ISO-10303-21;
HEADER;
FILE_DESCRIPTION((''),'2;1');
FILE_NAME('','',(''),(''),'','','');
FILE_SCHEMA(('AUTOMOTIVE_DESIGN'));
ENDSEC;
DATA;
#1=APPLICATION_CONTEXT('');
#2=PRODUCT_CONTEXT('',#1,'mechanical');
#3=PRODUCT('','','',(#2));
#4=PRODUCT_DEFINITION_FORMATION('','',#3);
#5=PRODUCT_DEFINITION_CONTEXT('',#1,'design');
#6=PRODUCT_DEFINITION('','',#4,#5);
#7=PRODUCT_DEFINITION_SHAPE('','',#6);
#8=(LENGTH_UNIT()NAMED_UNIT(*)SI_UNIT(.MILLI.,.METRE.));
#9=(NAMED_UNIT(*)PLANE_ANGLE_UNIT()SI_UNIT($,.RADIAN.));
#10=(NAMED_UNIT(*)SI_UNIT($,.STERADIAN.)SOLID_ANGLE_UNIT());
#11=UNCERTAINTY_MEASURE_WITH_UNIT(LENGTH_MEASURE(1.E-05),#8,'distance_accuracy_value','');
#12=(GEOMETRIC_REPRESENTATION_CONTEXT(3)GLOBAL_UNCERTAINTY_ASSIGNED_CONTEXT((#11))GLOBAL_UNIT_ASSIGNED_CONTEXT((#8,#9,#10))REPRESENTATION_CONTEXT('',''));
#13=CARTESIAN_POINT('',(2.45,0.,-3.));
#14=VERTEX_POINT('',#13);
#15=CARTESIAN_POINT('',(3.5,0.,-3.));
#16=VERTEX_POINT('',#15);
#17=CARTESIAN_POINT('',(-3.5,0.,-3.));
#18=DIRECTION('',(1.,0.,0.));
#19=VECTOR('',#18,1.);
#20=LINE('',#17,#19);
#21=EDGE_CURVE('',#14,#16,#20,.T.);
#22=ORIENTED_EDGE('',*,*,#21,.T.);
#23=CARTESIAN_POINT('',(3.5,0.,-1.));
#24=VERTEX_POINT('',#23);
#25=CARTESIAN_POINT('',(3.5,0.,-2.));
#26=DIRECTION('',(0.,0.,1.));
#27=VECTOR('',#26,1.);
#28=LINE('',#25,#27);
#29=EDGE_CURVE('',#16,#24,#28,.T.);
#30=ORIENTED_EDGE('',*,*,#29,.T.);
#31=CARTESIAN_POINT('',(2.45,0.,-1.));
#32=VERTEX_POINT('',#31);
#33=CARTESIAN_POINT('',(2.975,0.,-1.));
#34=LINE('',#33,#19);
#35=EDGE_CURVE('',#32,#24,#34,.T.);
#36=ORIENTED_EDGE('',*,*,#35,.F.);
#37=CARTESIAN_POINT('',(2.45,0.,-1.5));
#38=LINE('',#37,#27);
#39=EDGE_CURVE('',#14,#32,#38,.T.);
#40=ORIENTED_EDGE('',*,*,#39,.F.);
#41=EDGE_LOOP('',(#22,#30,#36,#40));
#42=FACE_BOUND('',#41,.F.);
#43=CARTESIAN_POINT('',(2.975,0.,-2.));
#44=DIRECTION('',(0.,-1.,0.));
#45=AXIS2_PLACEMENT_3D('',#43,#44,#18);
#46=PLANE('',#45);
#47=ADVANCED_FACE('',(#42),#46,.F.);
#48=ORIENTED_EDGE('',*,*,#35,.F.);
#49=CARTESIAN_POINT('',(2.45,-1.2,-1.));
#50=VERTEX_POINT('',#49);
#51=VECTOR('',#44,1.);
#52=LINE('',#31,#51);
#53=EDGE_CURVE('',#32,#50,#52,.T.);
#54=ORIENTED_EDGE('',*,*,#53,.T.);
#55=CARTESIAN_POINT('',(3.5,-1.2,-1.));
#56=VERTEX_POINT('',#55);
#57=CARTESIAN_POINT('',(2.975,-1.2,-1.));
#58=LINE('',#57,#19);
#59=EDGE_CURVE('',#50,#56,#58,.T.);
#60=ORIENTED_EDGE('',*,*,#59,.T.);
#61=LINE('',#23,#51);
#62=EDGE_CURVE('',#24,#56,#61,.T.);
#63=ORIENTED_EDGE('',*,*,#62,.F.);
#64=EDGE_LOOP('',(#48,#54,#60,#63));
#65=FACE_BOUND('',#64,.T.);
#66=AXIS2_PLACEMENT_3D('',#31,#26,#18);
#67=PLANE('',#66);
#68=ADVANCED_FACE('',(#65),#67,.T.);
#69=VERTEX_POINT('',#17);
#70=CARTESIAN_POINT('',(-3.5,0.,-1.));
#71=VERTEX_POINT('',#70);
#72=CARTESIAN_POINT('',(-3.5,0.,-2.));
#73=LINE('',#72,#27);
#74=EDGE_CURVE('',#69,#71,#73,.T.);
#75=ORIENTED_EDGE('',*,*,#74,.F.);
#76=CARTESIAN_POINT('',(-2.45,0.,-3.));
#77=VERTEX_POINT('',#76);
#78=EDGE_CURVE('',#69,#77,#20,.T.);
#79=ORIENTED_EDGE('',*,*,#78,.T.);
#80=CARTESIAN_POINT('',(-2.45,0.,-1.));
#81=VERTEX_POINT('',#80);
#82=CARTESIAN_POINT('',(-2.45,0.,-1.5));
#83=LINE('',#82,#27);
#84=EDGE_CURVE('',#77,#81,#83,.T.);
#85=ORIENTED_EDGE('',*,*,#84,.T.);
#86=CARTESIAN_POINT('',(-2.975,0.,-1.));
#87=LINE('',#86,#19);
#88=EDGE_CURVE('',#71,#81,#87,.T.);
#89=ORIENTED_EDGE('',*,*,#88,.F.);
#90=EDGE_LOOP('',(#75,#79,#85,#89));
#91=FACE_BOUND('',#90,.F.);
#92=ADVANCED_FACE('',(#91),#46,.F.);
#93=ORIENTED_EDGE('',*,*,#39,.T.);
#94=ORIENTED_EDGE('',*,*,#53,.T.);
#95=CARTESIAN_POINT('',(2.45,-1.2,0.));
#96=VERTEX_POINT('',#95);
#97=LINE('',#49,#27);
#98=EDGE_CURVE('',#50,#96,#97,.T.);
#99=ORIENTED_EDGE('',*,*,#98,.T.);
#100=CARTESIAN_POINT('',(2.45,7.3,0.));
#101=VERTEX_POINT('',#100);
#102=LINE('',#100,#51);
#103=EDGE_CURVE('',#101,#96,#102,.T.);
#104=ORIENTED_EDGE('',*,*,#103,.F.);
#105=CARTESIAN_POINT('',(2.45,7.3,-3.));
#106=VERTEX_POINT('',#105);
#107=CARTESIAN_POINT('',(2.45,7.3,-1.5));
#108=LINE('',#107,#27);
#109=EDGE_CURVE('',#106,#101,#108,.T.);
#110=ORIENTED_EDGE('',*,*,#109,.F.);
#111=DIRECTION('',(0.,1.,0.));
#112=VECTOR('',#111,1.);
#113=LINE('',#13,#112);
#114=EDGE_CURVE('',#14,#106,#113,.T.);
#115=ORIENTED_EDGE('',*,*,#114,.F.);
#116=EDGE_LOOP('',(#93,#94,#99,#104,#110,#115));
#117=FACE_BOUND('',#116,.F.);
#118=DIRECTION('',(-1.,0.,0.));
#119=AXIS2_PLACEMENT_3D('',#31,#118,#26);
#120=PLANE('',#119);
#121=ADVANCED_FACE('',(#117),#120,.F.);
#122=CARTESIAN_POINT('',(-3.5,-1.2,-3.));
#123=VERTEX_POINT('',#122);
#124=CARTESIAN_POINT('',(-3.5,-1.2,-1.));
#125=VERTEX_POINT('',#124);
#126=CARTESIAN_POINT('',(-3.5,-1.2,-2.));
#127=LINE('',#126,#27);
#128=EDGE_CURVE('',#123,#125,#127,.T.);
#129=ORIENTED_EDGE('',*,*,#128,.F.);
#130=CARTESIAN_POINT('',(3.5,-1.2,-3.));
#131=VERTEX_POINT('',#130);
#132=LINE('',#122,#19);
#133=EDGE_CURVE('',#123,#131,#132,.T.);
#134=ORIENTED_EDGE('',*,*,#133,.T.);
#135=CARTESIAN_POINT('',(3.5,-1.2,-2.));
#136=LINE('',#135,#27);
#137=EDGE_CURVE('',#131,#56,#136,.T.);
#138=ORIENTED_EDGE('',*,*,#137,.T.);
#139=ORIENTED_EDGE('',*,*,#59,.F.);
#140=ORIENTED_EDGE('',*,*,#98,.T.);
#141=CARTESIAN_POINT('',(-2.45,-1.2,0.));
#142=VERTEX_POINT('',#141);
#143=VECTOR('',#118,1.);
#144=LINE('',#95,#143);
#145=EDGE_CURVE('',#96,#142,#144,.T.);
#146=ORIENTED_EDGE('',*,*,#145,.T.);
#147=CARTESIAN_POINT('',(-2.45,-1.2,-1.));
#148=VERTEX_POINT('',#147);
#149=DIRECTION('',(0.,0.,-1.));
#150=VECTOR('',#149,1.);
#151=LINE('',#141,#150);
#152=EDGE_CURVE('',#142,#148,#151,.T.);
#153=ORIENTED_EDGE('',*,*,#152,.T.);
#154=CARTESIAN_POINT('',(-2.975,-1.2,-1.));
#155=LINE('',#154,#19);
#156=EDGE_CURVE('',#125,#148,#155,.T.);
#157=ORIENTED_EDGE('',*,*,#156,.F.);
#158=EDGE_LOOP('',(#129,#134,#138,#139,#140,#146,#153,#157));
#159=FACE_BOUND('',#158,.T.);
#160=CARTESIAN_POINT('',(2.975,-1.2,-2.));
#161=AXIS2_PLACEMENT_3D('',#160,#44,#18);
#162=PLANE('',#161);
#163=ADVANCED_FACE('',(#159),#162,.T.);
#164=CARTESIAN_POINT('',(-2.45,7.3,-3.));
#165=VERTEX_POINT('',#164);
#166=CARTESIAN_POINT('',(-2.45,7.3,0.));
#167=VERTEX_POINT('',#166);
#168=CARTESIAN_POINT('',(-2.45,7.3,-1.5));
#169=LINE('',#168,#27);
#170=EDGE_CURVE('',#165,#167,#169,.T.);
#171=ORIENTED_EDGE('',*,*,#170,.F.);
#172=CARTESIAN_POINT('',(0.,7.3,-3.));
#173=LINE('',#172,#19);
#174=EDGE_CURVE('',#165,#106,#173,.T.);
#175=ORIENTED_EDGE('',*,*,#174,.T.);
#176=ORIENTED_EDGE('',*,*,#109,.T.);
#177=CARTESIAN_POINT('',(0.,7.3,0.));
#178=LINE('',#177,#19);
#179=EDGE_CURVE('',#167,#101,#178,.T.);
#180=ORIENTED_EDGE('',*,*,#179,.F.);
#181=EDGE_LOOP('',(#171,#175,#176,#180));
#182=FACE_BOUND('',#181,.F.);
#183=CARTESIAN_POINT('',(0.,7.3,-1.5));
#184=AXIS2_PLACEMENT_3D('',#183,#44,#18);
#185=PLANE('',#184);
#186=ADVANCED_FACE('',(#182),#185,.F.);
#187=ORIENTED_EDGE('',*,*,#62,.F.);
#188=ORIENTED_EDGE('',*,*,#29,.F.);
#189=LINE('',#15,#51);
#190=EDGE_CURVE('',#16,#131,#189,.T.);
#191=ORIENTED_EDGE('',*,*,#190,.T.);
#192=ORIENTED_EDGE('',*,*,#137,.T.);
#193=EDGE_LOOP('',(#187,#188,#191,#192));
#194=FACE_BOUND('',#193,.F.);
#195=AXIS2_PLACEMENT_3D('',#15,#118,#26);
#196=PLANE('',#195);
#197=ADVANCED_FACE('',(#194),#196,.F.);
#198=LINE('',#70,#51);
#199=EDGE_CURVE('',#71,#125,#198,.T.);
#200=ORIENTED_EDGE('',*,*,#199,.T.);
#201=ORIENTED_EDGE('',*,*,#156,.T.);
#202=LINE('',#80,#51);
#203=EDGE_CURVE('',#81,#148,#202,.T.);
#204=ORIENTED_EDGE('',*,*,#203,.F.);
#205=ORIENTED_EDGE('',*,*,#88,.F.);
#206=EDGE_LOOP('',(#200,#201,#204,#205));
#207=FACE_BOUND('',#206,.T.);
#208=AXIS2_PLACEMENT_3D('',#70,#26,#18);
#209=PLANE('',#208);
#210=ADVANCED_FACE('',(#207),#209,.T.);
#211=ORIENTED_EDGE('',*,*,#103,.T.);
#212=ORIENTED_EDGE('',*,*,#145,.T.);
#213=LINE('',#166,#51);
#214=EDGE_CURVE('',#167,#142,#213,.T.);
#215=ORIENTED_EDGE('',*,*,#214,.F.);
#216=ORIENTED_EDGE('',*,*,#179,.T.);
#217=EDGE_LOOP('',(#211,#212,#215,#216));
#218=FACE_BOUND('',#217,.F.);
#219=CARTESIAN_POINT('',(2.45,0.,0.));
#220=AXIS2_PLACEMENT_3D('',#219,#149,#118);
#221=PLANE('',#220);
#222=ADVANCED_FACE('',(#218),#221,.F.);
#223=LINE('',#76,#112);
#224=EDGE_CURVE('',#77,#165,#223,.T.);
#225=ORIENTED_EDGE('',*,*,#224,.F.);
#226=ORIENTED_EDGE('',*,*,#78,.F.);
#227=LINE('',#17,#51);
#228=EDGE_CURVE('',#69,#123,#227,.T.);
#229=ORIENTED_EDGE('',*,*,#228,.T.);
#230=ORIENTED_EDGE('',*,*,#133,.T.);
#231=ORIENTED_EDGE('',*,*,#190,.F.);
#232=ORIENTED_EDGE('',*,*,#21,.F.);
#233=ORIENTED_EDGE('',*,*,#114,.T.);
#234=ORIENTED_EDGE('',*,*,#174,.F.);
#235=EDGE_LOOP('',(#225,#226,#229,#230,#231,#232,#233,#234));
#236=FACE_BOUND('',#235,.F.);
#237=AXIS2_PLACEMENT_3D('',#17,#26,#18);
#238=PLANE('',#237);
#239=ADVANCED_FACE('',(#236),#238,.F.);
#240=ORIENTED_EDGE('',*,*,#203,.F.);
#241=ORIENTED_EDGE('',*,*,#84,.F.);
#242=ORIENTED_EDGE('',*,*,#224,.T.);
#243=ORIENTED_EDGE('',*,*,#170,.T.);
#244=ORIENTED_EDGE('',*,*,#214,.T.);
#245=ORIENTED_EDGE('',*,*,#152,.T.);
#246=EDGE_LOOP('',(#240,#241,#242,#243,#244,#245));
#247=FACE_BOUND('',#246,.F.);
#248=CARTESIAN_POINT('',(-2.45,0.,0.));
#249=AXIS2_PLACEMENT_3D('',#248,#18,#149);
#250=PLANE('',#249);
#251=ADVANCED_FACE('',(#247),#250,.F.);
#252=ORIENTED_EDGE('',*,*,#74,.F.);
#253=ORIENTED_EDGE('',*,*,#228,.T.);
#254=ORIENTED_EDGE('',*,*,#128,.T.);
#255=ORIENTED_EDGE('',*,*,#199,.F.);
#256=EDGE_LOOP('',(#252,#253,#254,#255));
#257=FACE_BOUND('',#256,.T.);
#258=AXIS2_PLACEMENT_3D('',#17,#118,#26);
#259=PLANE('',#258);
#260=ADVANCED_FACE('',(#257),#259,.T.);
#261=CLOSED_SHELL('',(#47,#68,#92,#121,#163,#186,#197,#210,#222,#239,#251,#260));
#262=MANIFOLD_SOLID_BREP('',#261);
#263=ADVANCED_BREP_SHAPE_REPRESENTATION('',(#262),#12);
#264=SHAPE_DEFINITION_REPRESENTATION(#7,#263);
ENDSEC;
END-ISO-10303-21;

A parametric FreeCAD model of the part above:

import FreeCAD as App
import Part
import Sketcher
Q = App.Units.Quantity


def add_polygon(sketch, points):
    """Adds a closed chain of lines whose ends are joined by coincident constraints."""
    first, n = sketch.GeometryCount, len(points)
    for a, b in zip(points, points[1:] + points[:1]):
        sketch.addGeometry(Part.LineSegment(App.Vector(*a, 0), App.Vector(*b, 0)), False)
    for i in range(n):
        sketch.addConstraint(Sketcher.Constraint("Coincident", first + i, 2, first + (i + 1) % n, 1))

doc = App.newDocument("Part")
body = doc.addObject("PartDesign::Body", "Body")

# Sketch on XZ plane
sketch1 = body.newObject("Sketcher::SketchObject", "Sketch")
sketch1.AttachmentSupport = (doc.getObject("XZ_Plane"), [""])
sketch1.MapMode = "FlatFace"
add_polygon(sketch1, [(-2.5, 0), (-2.5, -3), (2.5, -3), (2.5, 0)])  # lines 0-3
sketch1.addConstraint([
    Sketcher.Constraint("Vertical", 0),
    Sketcher.Constraint("Horizontal", 1),
    Sketcher.Constraint("Vertical", 2),
    Sketcher.Constraint("Horizontal", 3),
    Sketcher.Constraint("Symmetric", 2, 2, 3, 2, -1, 1),
    Sketcher.Constraint("DistanceY", 0, 2, 0, 1, Q("3 mm")),
    Sketcher.Constraint("DistanceX", 1, 1, 1, 2, Q("4.9 mm")),
])
pad1 = body.newObject("PartDesign::Pad", "Pad")
pad1.Profile = sketch1
pad1.Length = 7.3
pad1.Reversed = True

# Sketch on XZ plane
sketch2 = body.newObject("Sketcher::SketchObject", "Sketch001")
sketch2.AttachmentSupport = (doc.getObject("XZ_Plane"), [""])
sketch2.MapMode = "FlatFace"
add_polygon(sketch2, [(3.5, -3), (3.5, -1), (2.5, -1), (2.5, 0), (-2.5, 0), (-2.5, -1), (-3.5, -1), (-3.5, -3)])  # lines 0-7
sketch2.addConstraint([
    Sketcher.Constraint("Vertical", 0),
    Sketcher.Constraint("Horizontal", 1),
    Sketcher.Constraint("Vertical", 2),
    Sketcher.Constraint("Horizontal", 3),
    Sketcher.Constraint("Vertical", 4),
    Sketcher.Constraint("Horizontal", 5),
    Sketcher.Constraint("Vertical", 6),
    Sketcher.Constraint("Horizontal", 7),
    Sketcher.Constraint("Symmetric", 2, 2, 3, 2, -1, 1),
    Sketcher.Constraint("Symmetric", 0, 2, 5, 2, -2),
    Sketcher.Constraint("DistanceX", 7, 1, 7, 2, Q("7 mm")),
    Sketcher.Constraint("DistanceY", 0, 1, 0, 2, Q("2 mm")),
    Sketcher.Constraint("DistanceY", 2, 1, 2, 2, Q("1 mm")),
    Sketcher.Constraint("DistanceX", 3, 2, 3, 1, Q("4.9 mm")),
])
pad2 = body.newObject("PartDesign::Pad", "Pad001")
pad2.Profile = sketch2
pad2.Length = 1.2

doc.recompute()
